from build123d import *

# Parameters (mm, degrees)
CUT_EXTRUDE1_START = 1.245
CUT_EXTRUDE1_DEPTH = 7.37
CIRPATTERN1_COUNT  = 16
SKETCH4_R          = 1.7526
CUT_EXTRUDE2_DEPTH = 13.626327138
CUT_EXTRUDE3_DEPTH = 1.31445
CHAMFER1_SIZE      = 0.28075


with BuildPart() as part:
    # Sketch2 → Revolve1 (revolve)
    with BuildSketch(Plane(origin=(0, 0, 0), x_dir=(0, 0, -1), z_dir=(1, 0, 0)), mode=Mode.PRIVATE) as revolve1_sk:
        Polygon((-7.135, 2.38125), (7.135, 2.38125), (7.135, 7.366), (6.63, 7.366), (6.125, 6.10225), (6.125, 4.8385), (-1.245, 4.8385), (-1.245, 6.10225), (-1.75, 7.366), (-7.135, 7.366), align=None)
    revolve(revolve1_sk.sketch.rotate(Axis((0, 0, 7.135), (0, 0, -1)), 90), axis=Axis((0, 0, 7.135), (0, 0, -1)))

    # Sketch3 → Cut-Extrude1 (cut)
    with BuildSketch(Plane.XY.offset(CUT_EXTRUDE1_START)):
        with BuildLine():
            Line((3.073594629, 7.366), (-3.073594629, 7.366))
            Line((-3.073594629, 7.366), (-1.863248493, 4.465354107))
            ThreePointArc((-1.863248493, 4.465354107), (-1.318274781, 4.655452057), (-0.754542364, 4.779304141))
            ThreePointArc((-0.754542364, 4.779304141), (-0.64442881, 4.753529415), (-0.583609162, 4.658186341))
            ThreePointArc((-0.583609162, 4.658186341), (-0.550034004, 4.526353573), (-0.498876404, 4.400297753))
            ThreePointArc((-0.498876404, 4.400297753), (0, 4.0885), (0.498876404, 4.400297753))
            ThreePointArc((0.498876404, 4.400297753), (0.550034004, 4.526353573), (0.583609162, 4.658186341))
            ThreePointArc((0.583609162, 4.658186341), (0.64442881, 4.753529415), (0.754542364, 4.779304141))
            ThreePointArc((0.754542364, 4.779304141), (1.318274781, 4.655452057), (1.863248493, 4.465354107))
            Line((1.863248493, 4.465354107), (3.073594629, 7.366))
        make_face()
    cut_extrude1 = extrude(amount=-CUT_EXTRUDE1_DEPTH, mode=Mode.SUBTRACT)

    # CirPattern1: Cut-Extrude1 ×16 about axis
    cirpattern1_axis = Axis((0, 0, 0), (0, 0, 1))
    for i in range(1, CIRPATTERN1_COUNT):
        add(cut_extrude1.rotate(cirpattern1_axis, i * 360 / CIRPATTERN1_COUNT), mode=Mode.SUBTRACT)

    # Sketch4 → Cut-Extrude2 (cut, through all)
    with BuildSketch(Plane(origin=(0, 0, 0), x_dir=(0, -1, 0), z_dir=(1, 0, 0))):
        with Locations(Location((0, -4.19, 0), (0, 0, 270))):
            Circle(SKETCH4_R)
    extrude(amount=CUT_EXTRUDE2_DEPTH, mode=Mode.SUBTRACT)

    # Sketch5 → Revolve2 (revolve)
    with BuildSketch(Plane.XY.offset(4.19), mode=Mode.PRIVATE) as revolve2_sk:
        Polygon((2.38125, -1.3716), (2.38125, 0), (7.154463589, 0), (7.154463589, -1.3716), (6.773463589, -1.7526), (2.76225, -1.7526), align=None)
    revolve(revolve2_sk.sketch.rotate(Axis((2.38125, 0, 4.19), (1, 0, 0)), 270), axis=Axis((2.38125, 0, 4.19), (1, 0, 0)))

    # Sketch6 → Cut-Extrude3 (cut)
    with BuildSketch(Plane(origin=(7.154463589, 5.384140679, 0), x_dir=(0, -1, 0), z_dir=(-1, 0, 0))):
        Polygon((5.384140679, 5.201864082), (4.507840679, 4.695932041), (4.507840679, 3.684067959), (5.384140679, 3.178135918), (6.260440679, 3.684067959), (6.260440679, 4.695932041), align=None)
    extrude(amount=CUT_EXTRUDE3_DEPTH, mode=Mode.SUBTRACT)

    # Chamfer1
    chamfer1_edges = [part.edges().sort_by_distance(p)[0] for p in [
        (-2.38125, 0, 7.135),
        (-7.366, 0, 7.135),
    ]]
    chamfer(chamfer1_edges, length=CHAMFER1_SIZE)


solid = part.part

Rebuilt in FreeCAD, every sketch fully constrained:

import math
import FreeCAD as App
import Part
import Sketcher
Q = App.Units.Quantity


def edges_at(feature, points):
    """Names of the edges that pass closest to the given points."""
    edges = feature.Shape.Edges
    near = lambda p: min(range(len(edges)), key=lambda i: edges[i].distToShape(Part.Vertex(*p))[0])
    return sorted({f"Edge{near(p) + 1}" for p in points})


def add_polygon(sketch, points):
    """Adds a closed chain of lines whose ends are joined by coincident constraints."""
    first, n = sketch.GeometryCount, len(points)
    for a, b in zip(points, points[1:] + points[:1]):
        sketch.addGeometry(Part.LineSegment(App.Vector(*a, 0), App.Vector(*b, 0)), False)
    for i in range(n):
        sketch.addConstraint(Sketcher.Constraint("Coincident", first + i, 2, first + (i + 1) % n, 1))

doc = App.newDocument("Part")
body = doc.addObject("PartDesign::Body", "Body")

# Sketch on YZ plane
sketch1 = body.newObject("Sketcher::SketchObject", "Sketch")
sketch1.AttachmentSupport = (doc.getObject("YZ_Plane"), [""])
sketch1.MapMode = "FlatFace"
add_polygon(sketch1, [(2.38125, 7.135), (2.38125, -7.135), (7.366, -7.135), (7.366, -6.63), (6.10225, -6.125), (4.8385, -6.125), (4.8385, 1.245), (6.10225, 1.245), (7.366, 1.75), (7.366, 7.135)])  # lines 0-9
sketch1.addConstraint(Sketcher.Constraint("Vertical", 0))
sketch1.addConstraint(Sketcher.Constraint("Horizontal", 1))
sketch1.addConstraint(Sketcher.Constraint("Vertical", 2))
sketch1.addConstraint(Sketcher.Constraint("Horizontal", 4))
sketch1.addConstraint(Sketcher.Constraint("Vertical", 5))
sketch1.addConstraint(Sketcher.Constraint("Horizontal", 6))
sketch1.addConstraint(Sketcher.Constraint("Vertical", 8))
sketch1.addConstraint(Sketcher.Constraint("Horizontal", 9))
sketch1.addConstraint(Sketcher.Constraint("Symmetric", 1, 2, 8, 2, -1))
sketch1.addConstraint(Sketcher.Constraint("Vertical", 3, 2, 6, 2))
sketch1.addConstraint(Sketcher.Constraint("Equal", 3, 7))
sketch1.addConstraint(Sketcher.Constraint("DistanceY", 0, 2, 0, 1, 14.27))
sketch1.addConstraint(Sketcher.Constraint("DistanceY", 5, 1, 5, 2, 7.37))
sketch1.addConstraint(Sketcher.Constraint("DistanceY", 2, 1, 2, 2, 0.505))
sketch1.addConstraint(Sketcher.Constraint("DistanceY", 8, 1, 8, 2, 5.385))
sketch1.addConstraint(Sketcher.Constraint("DistanceX", -1, 1, 1, 2, 7.366))
sketch1.addConstraint(Sketcher.Constraint("DistanceX", 0, 2, 3, 2, 3.721))
sketch1.addConstraint(Sketcher.Constraint("DistanceX", 1, 1, 1, 2, 4.98475))
sketch1.addConstraint(Sketcher.Constraint("DistanceX", 4, 2, 4, 1, 1.26375))
revolution = body.newObject("PartDesign::Revolution", "Revolution")
revolution.Profile = sketch1
revolution.ReferenceAxis = (sketch1, ["V_Axis"])
revolution.Angle = 360

# Sketch on XY plane
sketch2 = body.newObject("Sketcher::SketchObject", "Sketch001")
sketch2.AttachmentSupport = (doc.getObject("XY_Plane"), [""])
sketch2.MapMode = "FlatFace"
sketch2.AttachmentOffset = App.Placement(App.Vector(0, 0, 1.245), App.Rotation())
sketch2.addGeometry(Part.LineSegment(App.Vector(3.073595, 7.366, 0), App.Vector(-3.073595, 7.366, 0)), False)
sketch2.addGeometry(Part.LineSegment(App.Vector(-3.073595, 7.366, 0), App.Vector(-1.863248, 4.465354, 0)), False)
sketch2.addGeometry(Part.ArcOfCircle(Part.Circle(App.Vector(0, 0, 0), App.Vector(0, 0, 1), 4.8385), math.radians(98.971637), math.radians(112.649206)), False)
sketch2.addGeometry(Part.ArcOfCircle(Part.Circle(App.Vector(-0.731151, 4.631139, 0), App.Vector(0, 0, 1), 0.15), math.radians(10.38803), math.radians(98.971637)), False)
sketch2.addGeometry(Part.ArcOfCircle(Part.Circle(App.Vector(0.4, 4.8385, 0), App.Vector(0, 0, 1), 1), math.radians(-169.611971), math.radians(-154.010766)), False)
sketch2.addGeometry(Part.ArcOfCircle(Part.Circle(App.Vector(0, 4.6435, 0), App.Vector(0, 0, 1), 0.555), math.radians(-154.010767), math.radians(-25.989233)), False)
sketch2.addGeometry(Part.ArcOfCircle(Part.Circle(App.Vector(-0.4, 4.8385, 0), App.Vector(0, 0, 1), 1), math.radians(-25.989234), math.radians(-10.388029)), False)
sketch2.addGeometry(Part.ArcOfCircle(Part.Circle(App.Vector(0.731151, 4.631139, 0), App.Vector(0, 0, 1), 0.15), math.radians(81.028363), math.radians(169.61197)), False)
sketch2.addGeometry(Part.ArcOfCircle(Part.Circle(App.Vector(0, 0, 0), App.Vector(0, 0, 1), 4.8385), math.radians(67.350794), math.radians(81.028363)), False)
sketch2.addGeometry(Part.LineSegment(App.Vector(1.863248, 4.465354, 0), App.Vector(3.073595, 7.366, 0)), False)
sketch2.addConstraint(Sketcher.Constraint("Coincident", 0, 2, 1, 1))
sketch2.addConstraint(Sketcher.Constraint("Coincident", 1, 2, 2, 2))
sketch2.addConstraint(Sketcher.Constraint("Tangent", 2, 1, 3, 2))
sketch2.addConstraint(Sketcher.Constraint("Tangent", 3, 1, 4, 1))
sketch2.addConstraint(Sketcher.Constraint("Tangent", 4, 2, 5, 1))
sketch2.addConstraint(Sketcher.Constraint("Tangent", 5, 2, 6, 1))
sketch2.addConstraint(Sketcher.Constraint("Tangent", 6, 2, 7, 2))
sketch2.addConstraint(Sketcher.Constraint("Tangent", 7, 1, 8, 2))
sketch2.addConstraint(Sketcher.Constraint("Coincident", 8, 1, 9, 1))
sketch2.addConstraint(Sketcher.Constraint("Coincident", 9, 2, 0, 1))
sketch2.addConstraint(Sketcher.Constraint("Horizontal", 0))
sketch2.addConstraint(Sketcher.Constraint("Coincident", 2, 3, -1, 1))
sketch2.addConstraint(Sketcher.Constraint("Coincident", 8, 3, -1, 1))
sketch2.addConstraint(Sketcher.Constraint("Equal", 4, 6))
sketch2.addConstraint(Sketcher.Constraint("Equal", 3, 7))
sketch2.addConstraint(Sketcher.Constraint("Equal", 2, 8))
sketch2.addConstraint(Sketcher.Constraint("Symmetric", 4, 3, 6, 3, -2))
sketch2.addConstraint(Sketcher.Constraint("Horizontal", 1, 2, 8, 1))
sketch2.addConstraint(Sketcher.Constraint("Equal", 1, 9))
sketch2.addConstraint(Sketcher.Constraint("Radius", 4, 1.0))
sketch2.addConstraint(Sketcher.Constraint("Radius", 3, 0.15))
sketch2.addConstraint(Sketcher.Constraint("Radius", 5, 0.555))
sketch2.addConstraint(Sketcher.Constraint("DistanceX", -1, 1, 4, 3, 0.4))
sketch2.addConstraint(Sketcher.Constraint("Radius", 2, 4.8385))
sketch2.addConstraint(Sketcher.Constraint("DistanceY", -1, 1, 0, 2, 7.366))
sketch2.addConstraint(Sketcher.Constraint("DistanceX", 0, 2, 0, 1, 6.147189))
sketch2.addConstraint(Sketcher.Constraint("DistanceY", -1, 1, 4, 3, 4.8385))
sketch2.addConstraint(Sketcher.Constraint("DistanceX", 1, 2, 7, 3, 2.594399))
pocket1 = body.newObject("PartDesign::Pocket", "Pocket")
pocket1.Profile = sketch2
pocket1.Length = 7.37
doc.recompute()

polarpattern = body.newObject("PartDesign::PolarPattern", "PolarPattern")
polarpattern.Originals = [pocket1]
polarpattern.Axis = (doc.getObject("Z_Axis"), [""])
polarpattern.Angle = 360
polarpattern.Occurrences = 16
body.Tip = polarpattern

# Sketch on YZ plane
sketch3 = body.newObject("Sketcher::SketchObject", "Sketch002")
sketch3.AttachmentSupport = (doc.getObject("YZ_Plane"), [""])
sketch3.MapMode = "FlatFace"
sketch3.addGeometry(Part.Circle(App.Vector(0, 4.19, 0), App.Vector(0, 0, 1), 1.7526), False)
sketch3.addConstraint(Sketcher.Constraint("PointOnObject", 0, 3, -2))
sketch3.addConstraint(Sketcher.Constraint("Diameter", 0, 3.5052))
sketch3.addConstraint(Sketcher.Constraint("DistanceY", -1, 1, 0, 3, 4.19))
pocket2 = body.newObject("PartDesign::Pocket", "Pocket001")
pocket2.Profile = sketch3
pocket2.Type = "ThroughAll"
pocket2.Reversed = True

# Sketch on XY plane
sketch4 = body.newObject("Sketcher::SketchObject", "Sketch003")
sketch4.AttachmentSupport = (doc.getObject("XY_Plane"), [""])
sketch4.MapMode = "FlatFace"
sketch4.AttachmentOffset = App.Placement(App.Vector(0, 0, 4.19), App.Rotation())
add_polygon(sketch4, [(2.38125, 0), (2.38125, -1.3716), (2.76225, -1.7526), (6.773464, -1.7526), (7.154464, -1.3716), (7.154464, 0)])  # lines 0-5
sketch4.addConstraint(Sketcher.Constraint("Vertical", 0))
sketch4.addConstraint(Sketcher.Constraint("Horizontal", 2))
sketch4.addConstraint(Sketcher.Constraint("Vertical", 4))
sketch4.addConstraint(Sketcher.Constraint("Horizontal", 5))
sketch4.addConstraint(Sketcher.Constraint("PointOnObject", 4, 2, -1))
sketch4.addConstraint(Sketcher.Constraint("Perpendicular", 1, 3))
sketch4.addConstraint(Sketcher.Constraint("Horizontal", 0, 2, 3, 2))
sketch4.addConstraint(Sketcher.Constraint("Equal", 1, 3))
sketch4.addConstraint(Sketcher.Constraint("DistanceY", 0, 2, 0, 1, 1.3716))
sketch4.addConstraint(Sketcher.Constraint("DistanceX", 0, 2, 1, 2, 0.381))
sketch4.addConstraint(Sketcher.Constraint("DistanceX", 2, 1, 2, 2, 4.011214))
sketch4.addConstraint(Sketcher.Constraint("DistanceX", -1, 1, 0, 2, 2.38125))
revolution2 = body.newObject("PartDesign::Revolution", "Revolution001")
revolution2.Profile = sketch4
revolution2.ReferenceAxis = (sketch4, ["H_Axis"])
revolution2.Angle = 360

# Sketch on YZ plane
sketch5 = body.newObject("Sketcher::SketchObject", "Sketch004")
sketch5.AttachmentSupport = (doc.getObject("YZ_Plane"), [""])
sketch5.MapMode = "FlatFace"
sketch5.AttachmentOffset = App.Placement(App.Vector(0, 0, 7.154464), App.Rotation())
add_polygon(sketch5, [(0, 5.201864), (0.8763, 4.695932), (0.8763, 3.684068), (0, 3.178136), (-0.8763, 3.684068), (-0.8763, 4.695932)])  # lines 0-5
sketch5.addConstraint(Sketcher.Constraint("Vertical", 1))
sketch5.addConstraint(Sketcher.Constraint("Vertical", 4))
sketch5.addConstraint(Sketcher.Constraint("Symmetric", 1, 2, 3, 2, -2))
sketch5.addConstraint(Sketcher.Constraint("PointOnObject", 2, 2, -2))
sketch5.addConstraint(Sketcher.Constraint("PointOnObject", 5, 2, -2))
sketch5.addConstraint(Sketcher.Constraint("Parallel", 0, 3))
sketch5.addConstraint(Sketcher.Constraint("Parallel", 2, 5))
sketch5.addConstraint(Sketcher.Constraint("Angle", 0, Q("-30 deg")))
sketch5.addConstraint(Sketcher.Constraint("DistanceX", -1, 1, 0, 2, 0.8763))
sketch5.addConstraint(Sketcher.Constraint("DistanceY", 1, 2, 1, 1, 1.011864))
sketch5.addConstraint(Sketcher.Constraint("DistanceY", -1, 1, 0, 2, 4.695932))
pocket3 = body.newObject("PartDesign::Pocket", "Pocket002")
pocket3.Profile = sketch5
pocket3.Length = 1.31445
doc.recompute()

chamfer = body.newObject("PartDesign::Chamfer", "Chamfer")
chamfer.Base = (pocket3, edges_at(pocket3, [(-2.381, 0, 7.135), (-7.366, 0, 7.135)]))
chamfer.Size = 0.28075

doc.recompute()
